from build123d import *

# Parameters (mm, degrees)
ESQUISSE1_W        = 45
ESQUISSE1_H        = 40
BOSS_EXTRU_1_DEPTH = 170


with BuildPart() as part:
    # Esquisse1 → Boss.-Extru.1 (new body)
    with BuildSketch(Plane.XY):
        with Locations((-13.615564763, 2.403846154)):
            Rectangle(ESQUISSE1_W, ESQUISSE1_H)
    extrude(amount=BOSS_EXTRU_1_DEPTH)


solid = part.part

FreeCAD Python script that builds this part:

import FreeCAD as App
import Part
import Sketcher
from FreeCAD import Vector
Q = App.Units.Quantity

doc = App.newDocument("Part")
body = doc.addObject("PartDesign::Body", "Body")

# Sketch on XY plane
sketch1 = body.newObject("Sketcher::SketchObject", "Sketch")
sketch1.AttachmentSupport = (doc.getObject("XY_Plane"), [""])
sketch1.MapMode = "FlatFace"
sketch1.addGeometry([
    Part.LineSegment(Vector(-36, 22, 0), Vector(-36, -18, 0)),
    Part.LineSegment(Vector(-36, -18, 0), Vector(9, -18, 0)),
    Part.LineSegment(Vector(9, -18, 0), Vector(9, 22, 0)),
    Part.LineSegment(Vector(9, 22, 0), Vector(-36, 22, 0)),
], False)
sketch1.addConstraint([
    Sketcher.Constraint("Coincident", 0, 2, 1, 1),
    Sketcher.Constraint("Coincident", 1, 2, 2, 1),
    Sketcher.Constraint("Coincident", 2, 2, 3, 1),
    Sketcher.Constraint("Coincident", 3, 2, 0, 1),
    Sketcher.Constraint("Vertical", 0),
    Sketcher.Constraint("Horizontal", 1),
    Sketcher.Constraint("Vertical", 2),
    Sketcher.Constraint("Horizontal", 3),
    Sketcher.Constraint("DistanceX", 1, 1, 1, 2, Q("45 mm")),
    Sketcher.Constraint("DistanceY", 0, 2, 0, 1, Q("40 mm")),
    Sketcher.Constraint("DistanceX", 0, 2, -1, 1, Q("36.115565 mm")),
    Sketcher.Constraint("DistanceY", 0, 2, -1, 1, Q("17.596154 mm")),
])
pad1 = body.newObject("PartDesign::Pad", "Pad")
pad1.Profile = sketch1
pad1.Length = 170

doc.recompute()
